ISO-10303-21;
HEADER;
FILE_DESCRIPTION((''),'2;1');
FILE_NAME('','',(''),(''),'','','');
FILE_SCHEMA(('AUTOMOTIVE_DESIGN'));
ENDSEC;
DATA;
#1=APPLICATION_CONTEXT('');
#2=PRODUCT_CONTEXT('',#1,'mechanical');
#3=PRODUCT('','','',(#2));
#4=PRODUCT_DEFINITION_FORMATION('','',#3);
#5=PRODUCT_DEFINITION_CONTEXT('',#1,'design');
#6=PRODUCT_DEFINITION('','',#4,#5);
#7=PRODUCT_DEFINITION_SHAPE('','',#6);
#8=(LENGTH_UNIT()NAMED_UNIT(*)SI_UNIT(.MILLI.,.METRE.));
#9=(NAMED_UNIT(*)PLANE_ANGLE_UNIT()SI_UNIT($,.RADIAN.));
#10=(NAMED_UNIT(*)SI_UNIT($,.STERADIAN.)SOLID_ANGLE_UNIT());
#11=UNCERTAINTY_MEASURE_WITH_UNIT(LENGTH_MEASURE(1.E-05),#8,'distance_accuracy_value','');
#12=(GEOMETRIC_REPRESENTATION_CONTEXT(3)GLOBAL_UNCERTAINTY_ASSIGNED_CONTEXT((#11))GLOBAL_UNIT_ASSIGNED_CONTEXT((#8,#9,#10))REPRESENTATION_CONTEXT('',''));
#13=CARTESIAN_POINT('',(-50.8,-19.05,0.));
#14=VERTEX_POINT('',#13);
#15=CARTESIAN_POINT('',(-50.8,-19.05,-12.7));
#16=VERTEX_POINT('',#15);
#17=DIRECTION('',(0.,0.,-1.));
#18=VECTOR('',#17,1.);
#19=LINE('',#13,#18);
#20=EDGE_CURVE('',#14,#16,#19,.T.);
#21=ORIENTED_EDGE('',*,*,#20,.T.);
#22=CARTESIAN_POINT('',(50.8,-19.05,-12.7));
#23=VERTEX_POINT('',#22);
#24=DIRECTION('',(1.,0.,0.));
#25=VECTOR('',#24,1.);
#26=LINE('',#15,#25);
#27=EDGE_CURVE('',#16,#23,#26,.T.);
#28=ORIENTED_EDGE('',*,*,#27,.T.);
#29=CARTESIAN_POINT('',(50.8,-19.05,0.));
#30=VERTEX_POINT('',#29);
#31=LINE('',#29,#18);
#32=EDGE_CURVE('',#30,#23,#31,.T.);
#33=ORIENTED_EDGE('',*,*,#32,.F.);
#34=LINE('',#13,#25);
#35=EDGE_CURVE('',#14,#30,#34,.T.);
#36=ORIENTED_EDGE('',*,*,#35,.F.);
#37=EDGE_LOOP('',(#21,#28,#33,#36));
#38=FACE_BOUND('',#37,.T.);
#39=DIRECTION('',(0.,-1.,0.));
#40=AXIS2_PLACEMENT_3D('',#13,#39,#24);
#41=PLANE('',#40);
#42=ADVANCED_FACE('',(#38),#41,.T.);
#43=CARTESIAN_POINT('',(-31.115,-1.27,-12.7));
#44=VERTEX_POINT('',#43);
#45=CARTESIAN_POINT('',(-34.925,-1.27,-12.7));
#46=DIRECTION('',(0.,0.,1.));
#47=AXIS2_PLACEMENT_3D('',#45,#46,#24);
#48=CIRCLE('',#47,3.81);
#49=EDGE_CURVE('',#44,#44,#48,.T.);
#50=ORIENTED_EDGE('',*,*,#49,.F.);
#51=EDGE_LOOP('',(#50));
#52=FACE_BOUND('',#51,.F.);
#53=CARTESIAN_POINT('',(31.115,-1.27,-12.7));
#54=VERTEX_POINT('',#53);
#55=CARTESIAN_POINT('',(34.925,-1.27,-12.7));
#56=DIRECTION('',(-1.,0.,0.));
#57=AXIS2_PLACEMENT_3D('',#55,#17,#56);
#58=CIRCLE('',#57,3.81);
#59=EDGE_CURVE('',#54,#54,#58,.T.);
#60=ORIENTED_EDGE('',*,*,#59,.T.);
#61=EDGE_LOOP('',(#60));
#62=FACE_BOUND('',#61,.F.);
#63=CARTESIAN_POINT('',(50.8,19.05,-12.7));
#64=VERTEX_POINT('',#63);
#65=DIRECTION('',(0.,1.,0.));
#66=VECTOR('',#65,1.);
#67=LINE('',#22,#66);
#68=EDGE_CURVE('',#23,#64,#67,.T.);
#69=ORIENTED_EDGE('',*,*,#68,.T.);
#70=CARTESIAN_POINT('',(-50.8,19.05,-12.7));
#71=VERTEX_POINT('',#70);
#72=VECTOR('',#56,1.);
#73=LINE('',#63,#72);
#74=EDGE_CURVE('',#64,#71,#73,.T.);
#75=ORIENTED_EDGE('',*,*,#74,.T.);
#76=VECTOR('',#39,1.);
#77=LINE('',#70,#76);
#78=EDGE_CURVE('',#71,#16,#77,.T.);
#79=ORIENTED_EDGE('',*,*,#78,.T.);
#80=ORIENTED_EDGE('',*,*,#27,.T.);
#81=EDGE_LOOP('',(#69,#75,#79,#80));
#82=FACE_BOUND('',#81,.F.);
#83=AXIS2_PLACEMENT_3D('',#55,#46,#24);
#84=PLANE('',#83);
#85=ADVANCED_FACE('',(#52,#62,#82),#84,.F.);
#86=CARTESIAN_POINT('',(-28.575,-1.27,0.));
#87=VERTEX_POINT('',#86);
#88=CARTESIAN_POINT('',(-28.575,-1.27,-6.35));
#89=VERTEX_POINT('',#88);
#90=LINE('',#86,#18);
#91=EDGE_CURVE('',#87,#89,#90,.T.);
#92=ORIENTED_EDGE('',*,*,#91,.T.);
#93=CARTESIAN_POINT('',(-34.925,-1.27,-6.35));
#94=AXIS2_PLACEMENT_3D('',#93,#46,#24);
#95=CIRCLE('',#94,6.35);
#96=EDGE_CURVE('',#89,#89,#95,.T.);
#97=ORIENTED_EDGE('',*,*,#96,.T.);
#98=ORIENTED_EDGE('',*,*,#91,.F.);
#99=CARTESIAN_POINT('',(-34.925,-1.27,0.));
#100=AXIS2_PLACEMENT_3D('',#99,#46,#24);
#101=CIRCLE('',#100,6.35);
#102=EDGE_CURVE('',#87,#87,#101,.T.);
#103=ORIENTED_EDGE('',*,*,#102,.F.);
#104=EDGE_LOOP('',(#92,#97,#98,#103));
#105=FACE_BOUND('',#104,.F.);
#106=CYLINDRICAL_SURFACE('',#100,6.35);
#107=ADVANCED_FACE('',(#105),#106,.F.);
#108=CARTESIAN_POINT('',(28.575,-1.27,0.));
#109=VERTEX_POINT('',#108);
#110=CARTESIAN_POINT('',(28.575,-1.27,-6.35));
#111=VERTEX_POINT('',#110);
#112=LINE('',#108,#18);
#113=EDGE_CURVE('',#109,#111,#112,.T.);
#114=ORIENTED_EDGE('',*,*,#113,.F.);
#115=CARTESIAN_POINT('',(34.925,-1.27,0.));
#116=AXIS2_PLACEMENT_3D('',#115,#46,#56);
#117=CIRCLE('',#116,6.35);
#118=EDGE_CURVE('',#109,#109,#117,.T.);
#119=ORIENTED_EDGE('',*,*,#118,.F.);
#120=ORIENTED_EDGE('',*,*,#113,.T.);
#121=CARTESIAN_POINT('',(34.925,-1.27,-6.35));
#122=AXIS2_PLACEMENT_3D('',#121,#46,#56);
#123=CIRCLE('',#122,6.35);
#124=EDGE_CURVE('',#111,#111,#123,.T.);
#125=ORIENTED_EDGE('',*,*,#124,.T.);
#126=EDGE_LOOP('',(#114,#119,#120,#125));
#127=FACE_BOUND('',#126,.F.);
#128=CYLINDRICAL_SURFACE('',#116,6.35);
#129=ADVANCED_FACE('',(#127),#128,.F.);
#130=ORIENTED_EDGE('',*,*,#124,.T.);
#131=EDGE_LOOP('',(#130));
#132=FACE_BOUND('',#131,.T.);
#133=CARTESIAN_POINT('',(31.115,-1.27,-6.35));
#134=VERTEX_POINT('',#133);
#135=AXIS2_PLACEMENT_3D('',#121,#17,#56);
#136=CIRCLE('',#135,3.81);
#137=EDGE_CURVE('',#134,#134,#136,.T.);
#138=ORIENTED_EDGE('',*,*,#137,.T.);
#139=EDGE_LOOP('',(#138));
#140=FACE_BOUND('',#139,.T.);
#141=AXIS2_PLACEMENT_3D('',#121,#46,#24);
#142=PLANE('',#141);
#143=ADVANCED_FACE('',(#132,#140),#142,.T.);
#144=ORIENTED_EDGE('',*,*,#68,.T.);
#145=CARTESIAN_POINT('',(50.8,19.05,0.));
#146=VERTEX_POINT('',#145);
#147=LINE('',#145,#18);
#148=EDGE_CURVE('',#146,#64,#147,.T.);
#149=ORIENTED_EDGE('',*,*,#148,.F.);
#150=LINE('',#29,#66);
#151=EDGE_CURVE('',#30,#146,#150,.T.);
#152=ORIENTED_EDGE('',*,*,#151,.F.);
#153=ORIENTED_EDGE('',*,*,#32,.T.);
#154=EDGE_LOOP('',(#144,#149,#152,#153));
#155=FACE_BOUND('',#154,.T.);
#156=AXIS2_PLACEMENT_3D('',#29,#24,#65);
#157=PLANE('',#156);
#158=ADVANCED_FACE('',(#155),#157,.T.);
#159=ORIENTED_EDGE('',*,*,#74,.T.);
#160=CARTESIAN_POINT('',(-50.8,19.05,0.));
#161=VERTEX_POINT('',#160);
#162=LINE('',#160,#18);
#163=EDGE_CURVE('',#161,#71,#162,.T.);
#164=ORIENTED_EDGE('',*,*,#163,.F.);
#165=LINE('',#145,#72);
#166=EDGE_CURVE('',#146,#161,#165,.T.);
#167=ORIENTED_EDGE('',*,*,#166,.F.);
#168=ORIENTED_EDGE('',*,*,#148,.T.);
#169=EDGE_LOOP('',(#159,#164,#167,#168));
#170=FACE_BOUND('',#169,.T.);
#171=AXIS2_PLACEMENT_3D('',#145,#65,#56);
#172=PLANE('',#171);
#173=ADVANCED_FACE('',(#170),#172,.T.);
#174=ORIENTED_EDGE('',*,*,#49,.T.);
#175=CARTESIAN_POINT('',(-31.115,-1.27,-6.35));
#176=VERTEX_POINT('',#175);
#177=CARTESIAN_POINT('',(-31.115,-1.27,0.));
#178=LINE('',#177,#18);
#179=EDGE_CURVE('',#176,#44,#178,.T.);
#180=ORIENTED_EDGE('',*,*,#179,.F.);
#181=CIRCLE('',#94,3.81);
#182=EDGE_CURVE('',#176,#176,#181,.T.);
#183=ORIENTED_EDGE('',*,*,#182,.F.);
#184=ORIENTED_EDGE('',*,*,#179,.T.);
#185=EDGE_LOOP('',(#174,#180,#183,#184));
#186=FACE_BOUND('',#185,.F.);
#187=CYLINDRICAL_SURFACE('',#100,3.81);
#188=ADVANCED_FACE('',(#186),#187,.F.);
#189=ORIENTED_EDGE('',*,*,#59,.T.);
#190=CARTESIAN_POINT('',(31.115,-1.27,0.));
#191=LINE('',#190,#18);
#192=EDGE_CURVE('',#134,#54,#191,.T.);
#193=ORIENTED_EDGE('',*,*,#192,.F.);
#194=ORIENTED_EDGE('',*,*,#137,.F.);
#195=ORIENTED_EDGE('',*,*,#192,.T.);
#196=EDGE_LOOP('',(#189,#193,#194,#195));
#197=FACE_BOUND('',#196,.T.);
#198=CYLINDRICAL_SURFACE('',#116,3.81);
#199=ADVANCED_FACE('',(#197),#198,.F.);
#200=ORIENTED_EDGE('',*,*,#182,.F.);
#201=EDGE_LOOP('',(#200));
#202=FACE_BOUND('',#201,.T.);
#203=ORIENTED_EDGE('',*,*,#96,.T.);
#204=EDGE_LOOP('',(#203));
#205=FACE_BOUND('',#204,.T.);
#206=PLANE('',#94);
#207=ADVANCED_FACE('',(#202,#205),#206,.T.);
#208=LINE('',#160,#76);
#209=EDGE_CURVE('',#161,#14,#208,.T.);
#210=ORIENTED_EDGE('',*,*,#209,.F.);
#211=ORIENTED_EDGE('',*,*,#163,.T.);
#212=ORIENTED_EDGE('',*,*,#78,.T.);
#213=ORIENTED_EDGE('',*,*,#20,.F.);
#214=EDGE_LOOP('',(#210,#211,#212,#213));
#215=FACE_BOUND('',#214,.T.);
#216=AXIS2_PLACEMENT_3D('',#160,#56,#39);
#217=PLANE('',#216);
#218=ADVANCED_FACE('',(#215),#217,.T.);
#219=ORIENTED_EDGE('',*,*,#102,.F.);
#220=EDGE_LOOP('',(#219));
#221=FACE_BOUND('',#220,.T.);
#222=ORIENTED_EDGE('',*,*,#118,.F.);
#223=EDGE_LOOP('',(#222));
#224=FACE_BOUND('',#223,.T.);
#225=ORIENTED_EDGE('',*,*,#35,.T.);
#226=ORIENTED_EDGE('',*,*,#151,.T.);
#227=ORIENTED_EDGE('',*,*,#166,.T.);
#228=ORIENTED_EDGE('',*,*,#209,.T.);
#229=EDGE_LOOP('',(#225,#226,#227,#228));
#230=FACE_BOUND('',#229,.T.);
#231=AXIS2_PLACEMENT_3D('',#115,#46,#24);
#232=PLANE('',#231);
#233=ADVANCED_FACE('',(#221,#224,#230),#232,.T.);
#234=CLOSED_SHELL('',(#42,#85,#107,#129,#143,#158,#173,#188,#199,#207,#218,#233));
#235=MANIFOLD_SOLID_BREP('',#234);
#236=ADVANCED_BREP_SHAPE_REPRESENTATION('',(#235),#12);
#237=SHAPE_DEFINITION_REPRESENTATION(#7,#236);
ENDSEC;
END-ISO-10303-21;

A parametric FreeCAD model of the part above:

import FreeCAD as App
import Part
import Sketcher
from FreeCAD import Vector
Q = App.Units.Quantity


def add_polygon(sketch, points):
    """Adds a closed chain of lines whose ends are joined by coincident constraints."""
    first, n = sketch.GeometryCount, len(points)
    for a, b in zip(points, points[1:] + points[:1]):
        sketch.addGeometry(Part.LineSegment(App.Vector(*a, 0), App.Vector(*b, 0)), False)
    for i in range(n):
        sketch.addConstraint(Sketcher.Constraint("Coincident", first + i, 2, first + (i + 1) % n, 1))

doc = App.newDocument("Part")
body = doc.addObject("PartDesign::Body", "Body")

# Sketch on XY plane
sketch1 = body.newObject("Sketcher::SketchObject", "Sketch")
sketch1.AttachmentSupport = (doc.getObject("XY_Plane"), [""])
sketch1.MapMode = "FlatFace"
add_polygon(sketch1, [(-50.8, -19.1), (50.8, -19.1), (50.8, 19.1), (-50.8, 19.1)])  # lines 0-3
sketch1.addGeometry(Part.Circle(Vector(-34.9, -1.3, 0), Vector(0, 0, 1), 3.8), False)  # 4
sketch1.addGeometry(Part.Circle(Vector(34.9, -1.3, 0), Vector(0, 0, 1), 3.8), False)  # 5
sketch1.addConstraint(Sketcher.Constraint("Horizontal", 0))
sketch1.addConstraint(Sketcher.Constraint("Vertical", 1))
sketch1.addConstraint(Sketcher.Constraint("Horizontal", 2))
sketch1.addConstraint(Sketcher.Constraint("Vertical", 3))
sketch1.addConstraint(Sketcher.Constraint("Equal", 4, 5))
sketch1.addConstraint(Sketcher.Constraint("Symmetric", 0, 2, 2, 2, -1, 1))
sketch1.addConstraint(Sketcher.Constraint("Symmetric", 4, 3, 5, 3, -2))
sketch1.addConstraint(Sketcher.Constraint("Diameter", 4, Q("0.3 in")))
sketch1.addConstraint(Sketcher.Constraint("DistanceX", 0, 1, 0, 2, Q("4 in")))
sketch1.addConstraint(Sketcher.Constraint("DistanceY", 1, 1, 1, 2, Q("1.5 in")))
sketch1.addConstraint(Sketcher.Constraint("DistanceY", 0, 2, 5, 3, Q("0.7 in")))
sketch1.addConstraint(Sketcher.Constraint("DistanceX", 4, 3, 5, 3, Q("2.75 in")))
pad1 = body.newObject("PartDesign::Pad", "Pad")
pad1.Profile = sketch1
pad1.Length = Q("0.5 in")
pad1.Reversed = True

# Sketch on XY plane
sketch2 = body.newObject("Sketcher::SketchObject", "Sketch001")
sketch2.AttachmentSupport = (doc.getObject("XY_Plane"), [""])
sketch2.MapMode = "FlatFace"
sketch2.addGeometry(Part.Circle(Vector(-34.9, -1.3, 0), Vector(0, 0, 1), 6.3), False)
sketch2.addGeometry(Part.Circle(Vector(-34.9, -1.3, 0), Vector(0, 0, 1), 3.8), False)
sketch2.addGeometry(Part.Circle(Vector(34.9, -1.3, 0), Vector(0, 0, 1), 6.3), False)
sketch2.addGeometry(Part.Circle(Vector(34.9, -1.3, 0), Vector(0, 0, 1), 3.8), False)
sketch2.addConstraint(Sketcher.Constraint("Coincident", 1, 3, 0, 3))
sketch2.addConstraint(Sketcher.Constraint("Coincident", 3, 3, 2, 3))
sketch2.addConstraint(Sketcher.Constraint("Equal", 0, 2))
sketch2.addConstraint(Sketcher.Constraint("Equal", 1, 3))
sketch2.addConstraint(Sketcher.Constraint("Symmetric", 0, 3, 2, 3, -2))
sketch2.addConstraint(Sketcher.Constraint("Diameter", 0, Q("0.5 in")))
sketch2.addConstraint(Sketcher.Constraint("Diameter", 1, Q("0.3 in")))
sketch2.addConstraint(Sketcher.Constraint("DistanceY", 0, 3, -1, 1, Q("0.05 in")))
sketch2.addConstraint(Sketcher.Constraint("DistanceX", 0, 3, 2, 3, Q("2.75 in")))
pocket1 = body.newObject("PartDesign::Pocket", "Pocket")
pocket1.Profile = sketch2
pocket1.Length = Q("0.25 in")

doc.recompute()
